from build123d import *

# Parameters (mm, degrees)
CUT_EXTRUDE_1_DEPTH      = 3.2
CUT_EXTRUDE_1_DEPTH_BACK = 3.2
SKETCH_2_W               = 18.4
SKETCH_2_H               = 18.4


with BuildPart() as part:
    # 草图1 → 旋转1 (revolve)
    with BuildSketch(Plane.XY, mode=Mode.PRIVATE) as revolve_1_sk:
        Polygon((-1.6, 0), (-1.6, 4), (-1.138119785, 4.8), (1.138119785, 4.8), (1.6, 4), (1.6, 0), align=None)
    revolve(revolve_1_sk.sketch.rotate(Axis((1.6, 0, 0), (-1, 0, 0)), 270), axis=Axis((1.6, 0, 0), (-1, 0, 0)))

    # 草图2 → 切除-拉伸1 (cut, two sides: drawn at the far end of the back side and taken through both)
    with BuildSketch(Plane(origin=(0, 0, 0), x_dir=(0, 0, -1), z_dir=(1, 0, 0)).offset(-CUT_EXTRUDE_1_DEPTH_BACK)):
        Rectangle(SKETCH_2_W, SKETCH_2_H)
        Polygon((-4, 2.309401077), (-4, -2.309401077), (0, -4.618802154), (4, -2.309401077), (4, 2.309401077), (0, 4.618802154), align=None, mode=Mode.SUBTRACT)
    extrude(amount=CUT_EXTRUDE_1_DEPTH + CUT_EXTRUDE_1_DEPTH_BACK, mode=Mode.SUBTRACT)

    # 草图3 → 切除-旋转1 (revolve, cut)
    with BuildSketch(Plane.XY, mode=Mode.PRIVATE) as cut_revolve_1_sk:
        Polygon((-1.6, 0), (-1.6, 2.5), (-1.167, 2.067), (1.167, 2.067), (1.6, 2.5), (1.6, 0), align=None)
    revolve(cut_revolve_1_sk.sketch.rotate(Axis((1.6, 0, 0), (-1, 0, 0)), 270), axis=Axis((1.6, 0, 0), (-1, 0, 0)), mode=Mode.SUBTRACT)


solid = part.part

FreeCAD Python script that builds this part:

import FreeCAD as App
import Part
import Sketcher
Q = App.Units.Quantity


def add_polygon(sketch, points):
    """Adds a closed chain of lines whose ends are joined by coincident constraints."""
    first, n = sketch.GeometryCount, len(points)
    for a, b in zip(points, points[1:] + points[:1]):
        sketch.addGeometry(Part.LineSegment(App.Vector(*a, 0), App.Vector(*b, 0)), False)
    for i in range(n):
        sketch.addConstraint(Sketcher.Constraint("Coincident", first + i, 2, first + (i + 1) % n, 1))

doc = App.newDocument("Part")
body = doc.addObject("PartDesign::Body", "Body")

# Sketch on XY plane
sketch1 = body.newObject("Sketcher::SketchObject", "Sketch")
sketch1.AttachmentSupport = (doc.getObject("XY_Plane"), [""])
sketch1.MapMode = "FlatFace"
add_polygon(sketch1, [(-1.6, 4), (-1.6, 0), (1.6, 0), (1.6, 4), (1.1, 4.8), (-1.1, 4.8)])  # lines 0-5
sketch1.addConstraint([
    Sketcher.Constraint("Vertical", 0),
    Sketcher.Constraint("Horizontal", 1),
    Sketcher.Constraint("Vertical", 2),
    Sketcher.Constraint("Horizontal", 4),
    Sketcher.Constraint("Symmetric", 0, 2, 1, 2, -1, 1),
    Sketcher.Constraint("Horizontal", 2, 2, 5, 2),
    Sketcher.Constraint("Equal", 3, 5),
    Sketcher.Constraint("DistanceY", 0, 2, 0, 1, 4.0),
    Sketcher.Constraint("Angle", 3, Q("120 deg")),
    Sketcher.Constraint("DistanceX", 1, 1, 1, 2, 3.2),
    Sketcher.Constraint("DistanceY", -1, 1, 3, 2, 4.8),
])
revolution = body.newObject("PartDesign::Revolution", "Revolution")
revolution.Profile = sketch1
revolution.ReferenceAxis = (sketch1, ["H_Axis"])
revolution.Angle = 360

# Sketch on YZ plane
sketch2 = body.newObject("Sketcher::SketchObject", "Sketch001")
sketch2.AttachmentSupport = (doc.getObject("YZ_Plane"), [""])
sketch2.MapMode = "FlatFace"
add_polygon(sketch2, [(9.2, 9.2), (-9.2, 9.2), (-9.2, -9.2), (9.2, -9.2)])  # lines 0-3
add_polygon(sketch2, [(-2.3, 4), (2.3, 4), (4.6, 0), (2.3, -4), (-2.3, -4), (-4.6, 0)])  # lines 4-9
sketch2.addConstraint([
    Sketcher.Constraint("Horizontal", 0),
    Sketcher.Constraint("Vertical", 1),
    Sketcher.Constraint("Horizontal", 2),
    Sketcher.Constraint("Vertical", 3),
    Sketcher.Constraint("Horizontal", 4),
    Sketcher.Constraint("Horizontal", 7),
    Sketcher.Constraint("Symmetric", 0, 2, 2, 2, -1, 1),
    Sketcher.Constraint("Symmetric", 4, 2, 7, 2, -1, 1),
    Sketcher.Constraint("Symmetric", 5, 2, 8, 2, -1, 1),
    Sketcher.Constraint("PointOnObject", 5, 2, -1),
    Sketcher.Constraint("Parallel", 6, 9),
    Sketcher.Constraint("Vertical", 4, 2, 6, 2),
    Sketcher.Constraint("Equal", 2, 1),
    Sketcher.Constraint("Angle", 5, Q("-60 deg")),
    Sketcher.Constraint("DistanceX", 0, 2, 0, 1, 18.4),
    Sketcher.Constraint("DistanceY", -1, 1, 4, 2, 4.0),
    Sketcher.Constraint("DistanceX", -1, 1, 4, 2, 2.309401),
])
pocket1 = body.newObject("PartDesign::Pocket", "Pocket")
pocket1.Profile = sketch2
pocket1.Type = "ThroughAll"
pocket1.Midplane = True

# Sketch on XY plane
sketch3 = body.newObject("Sketcher::SketchObject", "Sketch002")
sketch3.AttachmentSupport = (doc.getObject("XY_Plane"), [""])
sketch3.MapMode = "FlatFace"
add_polygon(sketch3, [(-1.6, 2.5), (-1.6, 0), (1.6, 0), (1.6, 2.5), (1.2, 2.1), (-1.2, 2.1)])  # lines 0-5
sketch3.addConstraint([
    Sketcher.Constraint("Vertical", 0),
    Sketcher.Constraint("Horizontal", 1),
    Sketcher.Constraint("Vertical", 2),
    Sketcher.Constraint("Horizontal", 4),
    Sketcher.Constraint("Symmetric", 0, 2, 1, 2, -1, 1),
    Sketcher.Constraint("Perpendicular", 3, 5),
    Sketcher.Constraint("Horizontal", 2, 2, 5, 2),
    Sketcher.Constraint("Equal", 3, 5),
    Sketcher.Constraint("DistanceX", 1, 1, 1, 2, 3.2),
    Sketcher.Constraint("DistanceY", 0, 2, 0, 1, 2.5),
    Sketcher.Constraint("DistanceX", 4, 2, 4, 1, 2.334),
])
groove = body.newObject("PartDesign::Groove", "Groove")
groove.Profile = sketch3
groove.ReferenceAxis = (sketch3, ["H_Axis"])
groove.Angle = 360

doc.recompute()
